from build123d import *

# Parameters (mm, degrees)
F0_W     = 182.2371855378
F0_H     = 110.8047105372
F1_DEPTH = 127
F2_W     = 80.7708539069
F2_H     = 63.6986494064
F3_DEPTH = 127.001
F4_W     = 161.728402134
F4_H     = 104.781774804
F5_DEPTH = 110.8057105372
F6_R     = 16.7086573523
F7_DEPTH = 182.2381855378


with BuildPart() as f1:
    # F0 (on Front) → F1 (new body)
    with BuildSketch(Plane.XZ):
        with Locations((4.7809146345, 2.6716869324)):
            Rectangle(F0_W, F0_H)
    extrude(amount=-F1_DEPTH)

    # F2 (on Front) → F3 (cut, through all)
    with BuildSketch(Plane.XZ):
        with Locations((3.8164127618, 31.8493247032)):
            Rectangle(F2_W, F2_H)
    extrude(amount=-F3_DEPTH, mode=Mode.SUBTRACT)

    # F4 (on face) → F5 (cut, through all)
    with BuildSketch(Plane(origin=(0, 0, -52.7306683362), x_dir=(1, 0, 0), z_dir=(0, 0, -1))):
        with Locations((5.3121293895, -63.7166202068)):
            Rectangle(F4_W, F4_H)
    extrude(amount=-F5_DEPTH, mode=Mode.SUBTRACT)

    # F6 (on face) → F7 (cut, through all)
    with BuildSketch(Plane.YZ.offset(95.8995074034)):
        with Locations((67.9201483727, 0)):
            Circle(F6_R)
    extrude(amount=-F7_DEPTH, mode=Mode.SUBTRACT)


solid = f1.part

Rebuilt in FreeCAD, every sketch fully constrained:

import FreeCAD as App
import Part
import Sketcher

V = App.Vector
Q = App.Units.Quantity

doc = App.newDocument("Part")
body = doc.addObject("PartDesign::Body", "Body")

# Sketch on XZ plane
sketch1 = body.newObject("Sketcher::SketchObject", "Sketch")
sketch1.AttachmentSupport = (doc.getObject("XZ_Plane"), [""])
sketch1.MapMode = "FlatFace"
sketch1.addGeometry([
    Part.LineSegment(V(-86.337678, 58.074042, 0), V(-86.337678, -52.730668, 0)),
    Part.LineSegment(V(-86.337678, -52.730668, 0), V(95.899507, -52.730668, 0)),
    Part.LineSegment(V(95.899507, -52.730668, 0), V(95.899507, 58.074042, 0)),
    Part.LineSegment(V(95.899507, 58.074042, 0), V(-86.337678, 58.074042, 0)),
], False)
sketch1.addConstraint([
    Sketcher.Constraint("Coincident", 0, 2, 1, 1),
    Sketcher.Constraint("Coincident", 1, 2, 2, 1),
    Sketcher.Constraint("Coincident", 2, 2, 3, 1),
    Sketcher.Constraint("Coincident", 3, 2, 0, 1),
    Sketcher.Constraint("Vertical", 0),
    Sketcher.Constraint("Horizontal", 1),
    Sketcher.Constraint("Vertical", 2),
    Sketcher.Constraint("Horizontal", 3),
    Sketcher.Constraint("DistanceY", 0, 2, 0, 1, 110.804711),
    Sketcher.Constraint("DistanceX", 1, 1, 1, 2, 182.237186),
    Sketcher.Constraint("DistanceX", 0, 2, -1, 1, 86.337678),
    Sketcher.Constraint("DistanceY", 0, 2, -1, 1, 52.730668),
])
pad1 = body.newObject("PartDesign::Pad", "Pad")
pad1.Profile = sketch1
pad1.Length = Q("5 in")
pad1.Reversed = True

# Sketch on XZ plane
sketch2 = body.newObject("Sketcher::SketchObject", "Sketch001")
sketch2.AttachmentSupport = (doc.getObject("XZ_Plane"), [""])
sketch2.MapMode = "FlatFace"
sketch2.addGeometry([
    Part.LineSegment(V(-36.569014, 63.698649, 0), V(-36.569014, 0, 0)),
    Part.LineSegment(V(-36.569014, 0, 0), V(44.20184, 0, 0)),
    Part.LineSegment(V(44.20184, 0, 0), V(44.20184, 63.698649, 0)),
    Part.LineSegment(V(44.20184, 63.698649, 0), V(-36.569014, 63.698649, 0)),
], False)
sketch2.addConstraint([
    Sketcher.Constraint("Coincident", 0, 2, 1, 1),
    Sketcher.Constraint("Coincident", 1, 2, 2, 1),
    Sketcher.Constraint("Coincident", 2, 2, 3, 1),
    Sketcher.Constraint("Coincident", 3, 2, 0, 1),
    Sketcher.Constraint("Vertical", 0),
    Sketcher.Constraint("Horizontal", 1),
    Sketcher.Constraint("Vertical", 2),
    Sketcher.Constraint("Horizontal", 3),
    Sketcher.Constraint("PointOnObject", 0, 2, -1),
    Sketcher.Constraint("DistanceY", 0, 2, 0, 1, 63.698649),
    Sketcher.Constraint("DistanceX", 1, 1, 1, 2, 80.770854),
    Sketcher.Constraint("DistanceX", -1, 1, 1, 2, 44.20184),
])
pocket1 = body.newObject("PartDesign::Pocket", "Pocket")
pocket1.Profile = sketch2
pocket1.Type = "ThroughAll"

# Sketch on XY plane
sketch3 = body.newObject("Sketcher::SketchObject", "Sketch002")
sketch3.AttachmentSupport = (doc.getObject("XY_Plane"), [""])
sketch3.MapMode = "FlatFace"
sketch3.AttachmentOffset = App.Placement(V(0, 0, -52.730668), App.Rotation())
sketch3.addGeometry([
    Part.LineSegment(V(-75.552072, 11.325733, 0), V(-75.552072, 116.107508, 0)),
    Part.LineSegment(V(-75.552072, 116.107508, 0), V(86.17633, 116.107508, 0)),
    Part.LineSegment(V(86.17633, 116.107508, 0), V(86.17633, 11.325733, 0)),
    Part.LineSegment(V(86.17633, 11.325733, 0), V(-75.552072, 11.325733, 0)),
], False)
sketch3.addConstraint([
    Sketcher.Constraint("Coincident", 0, 2, 1, 1),
    Sketcher.Constraint("Coincident", 1, 2, 2, 1),
    Sketcher.Constraint("Coincident", 2, 2, 3, 1),
    Sketcher.Constraint("Coincident", 3, 2, 0, 1),
    Sketcher.Constraint("Vertical", 0),
    Sketcher.Constraint("Horizontal", 1),
    Sketcher.Constraint("Vertical", 2),
    Sketcher.Constraint("Horizontal", 3),
    Sketcher.Constraint("DistanceX", 1, 1, 1, 2, 161.728402),
    Sketcher.Constraint("DistanceY", 0, 1, 0, 2, 104.781775),
    Sketcher.Constraint("DistanceX", 0, 2, -1, 1, 75.552072),
    Sketcher.Constraint("DistanceY", -1, 1, 0, 2, 116.107508),
])
pocket2 = body.newObject("PartDesign::Pocket", "Pocket001")
pocket2.Profile = sketch3
pocket2.Type = "ThroughAll"
pocket2.Reversed = True

# Sketch on YZ plane
sketch4 = body.newObject("Sketcher::SketchObject", "Sketch003")
sketch4.AttachmentSupport = (doc.getObject("YZ_Plane"), [""])
sketch4.MapMode = "FlatFace"
sketch4.AttachmentOffset = App.Placement(V(0, 0, 95.899507), App.Rotation())
sketch4.addGeometry(Part.Circle(V(67.920148, 0, 0), V(0, 0, 1), 16.708657), False)
sketch4.addConstraint([
    Sketcher.Constraint("PointOnObject", 0, 3, -1),
    Sketcher.Constraint("Diameter", 0, 33.417315),
    Sketcher.Constraint("DistanceX", -1, 1, 0, 3, 67.920148),
])
pocket3 = body.newObject("PartDesign::Pocket", "Pocket002")
pocket3.Profile = sketch4
pocket3.Type = "ThroughAll"

doc.recompute()
